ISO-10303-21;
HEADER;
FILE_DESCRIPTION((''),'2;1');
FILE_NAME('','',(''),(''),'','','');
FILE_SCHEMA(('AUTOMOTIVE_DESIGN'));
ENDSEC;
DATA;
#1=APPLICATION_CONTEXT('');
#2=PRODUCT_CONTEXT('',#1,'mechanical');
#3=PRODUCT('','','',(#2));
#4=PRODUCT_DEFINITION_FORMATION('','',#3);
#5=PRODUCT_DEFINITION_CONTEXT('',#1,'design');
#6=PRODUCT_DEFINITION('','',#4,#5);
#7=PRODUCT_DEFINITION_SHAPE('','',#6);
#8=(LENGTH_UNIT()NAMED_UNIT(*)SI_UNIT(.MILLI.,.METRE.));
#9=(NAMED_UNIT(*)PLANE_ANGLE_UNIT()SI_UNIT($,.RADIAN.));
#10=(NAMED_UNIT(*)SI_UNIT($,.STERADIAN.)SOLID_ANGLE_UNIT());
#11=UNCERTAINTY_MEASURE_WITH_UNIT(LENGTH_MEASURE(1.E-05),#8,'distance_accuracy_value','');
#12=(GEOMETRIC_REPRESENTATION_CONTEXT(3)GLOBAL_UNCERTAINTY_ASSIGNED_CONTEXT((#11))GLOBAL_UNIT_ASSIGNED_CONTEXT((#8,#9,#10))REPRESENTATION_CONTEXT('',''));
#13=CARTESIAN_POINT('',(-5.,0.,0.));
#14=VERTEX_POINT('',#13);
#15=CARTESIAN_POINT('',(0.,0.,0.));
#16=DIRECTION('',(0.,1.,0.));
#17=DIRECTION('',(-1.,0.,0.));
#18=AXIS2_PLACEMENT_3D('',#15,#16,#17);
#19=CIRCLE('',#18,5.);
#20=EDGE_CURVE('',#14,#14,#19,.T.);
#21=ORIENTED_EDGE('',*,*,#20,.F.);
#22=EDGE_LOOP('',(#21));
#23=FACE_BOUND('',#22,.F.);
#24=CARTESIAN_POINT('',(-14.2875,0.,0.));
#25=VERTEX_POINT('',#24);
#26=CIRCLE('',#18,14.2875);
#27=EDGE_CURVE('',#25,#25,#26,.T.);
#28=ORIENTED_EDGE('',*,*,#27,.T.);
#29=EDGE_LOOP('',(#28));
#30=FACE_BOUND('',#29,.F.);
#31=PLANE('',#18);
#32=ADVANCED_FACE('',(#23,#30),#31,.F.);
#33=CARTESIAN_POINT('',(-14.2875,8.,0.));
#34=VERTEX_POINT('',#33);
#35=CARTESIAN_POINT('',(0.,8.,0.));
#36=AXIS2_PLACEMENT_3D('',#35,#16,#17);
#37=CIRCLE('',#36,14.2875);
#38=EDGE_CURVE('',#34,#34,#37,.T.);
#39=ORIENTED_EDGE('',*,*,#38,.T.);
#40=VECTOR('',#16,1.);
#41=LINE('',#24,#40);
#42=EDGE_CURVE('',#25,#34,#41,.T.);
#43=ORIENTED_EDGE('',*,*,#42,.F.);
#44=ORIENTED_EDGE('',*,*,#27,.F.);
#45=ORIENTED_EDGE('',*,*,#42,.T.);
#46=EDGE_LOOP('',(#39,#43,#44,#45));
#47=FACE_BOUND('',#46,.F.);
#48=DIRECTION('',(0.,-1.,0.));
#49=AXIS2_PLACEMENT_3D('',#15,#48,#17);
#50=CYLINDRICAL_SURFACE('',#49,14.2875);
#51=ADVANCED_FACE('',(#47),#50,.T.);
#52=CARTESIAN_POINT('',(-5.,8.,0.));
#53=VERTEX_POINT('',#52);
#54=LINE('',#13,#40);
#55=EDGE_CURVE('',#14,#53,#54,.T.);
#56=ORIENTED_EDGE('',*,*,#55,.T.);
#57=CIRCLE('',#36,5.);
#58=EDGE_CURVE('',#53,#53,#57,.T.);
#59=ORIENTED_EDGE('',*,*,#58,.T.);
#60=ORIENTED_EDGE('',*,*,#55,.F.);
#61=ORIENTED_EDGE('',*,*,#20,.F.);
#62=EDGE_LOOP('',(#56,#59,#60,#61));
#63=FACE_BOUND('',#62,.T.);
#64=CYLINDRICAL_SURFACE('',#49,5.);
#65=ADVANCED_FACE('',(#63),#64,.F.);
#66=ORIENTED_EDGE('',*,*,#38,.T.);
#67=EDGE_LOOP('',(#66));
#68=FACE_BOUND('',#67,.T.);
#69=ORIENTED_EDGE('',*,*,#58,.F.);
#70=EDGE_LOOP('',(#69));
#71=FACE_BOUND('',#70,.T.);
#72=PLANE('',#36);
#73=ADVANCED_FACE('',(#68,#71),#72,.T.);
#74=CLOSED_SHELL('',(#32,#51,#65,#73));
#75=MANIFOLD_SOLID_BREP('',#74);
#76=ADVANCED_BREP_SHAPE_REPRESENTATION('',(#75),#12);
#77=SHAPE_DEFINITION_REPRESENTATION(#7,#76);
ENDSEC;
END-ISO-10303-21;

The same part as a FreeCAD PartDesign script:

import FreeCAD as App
import Part
import Sketcher

doc = App.newDocument("Part")
body = doc.addObject("PartDesign::Body", "Body")

sketch1 = doc.addObject("Sketcher::SketchObject", "Sketch")
body.addObject(sketch1)
sketch1.AttachmentSupport = (doc.XZ_Plane, [""])
sketch1.MapMode = "FlatFace"
sketch1.addGeometry([
    Part.Circle(App.Vector(0, 0, 0), App.Vector(0, 0, 1), 14.2875),
    Part.Circle(App.Vector(0, 0, 0), App.Vector(0, 0, 1), 5),
], False)
sketch1.addConstraint([
    Sketcher.Constraint("Coincident", 0, 3, -1, 1),
    Sketcher.Constraint("Coincident", 1, 3, -1, 1),
    Sketcher.Constraint("Diameter", 1, 10.0),
    Sketcher.Constraint("Diameter", 0, 28.575),
])
pad1 = doc.addObject("PartDesign::Pad", "Pad")
body.addObject(pad1)
pad1.Profile = sketch1
pad1.Length = 8
pad1.Reversed = True

doc.recompute()
